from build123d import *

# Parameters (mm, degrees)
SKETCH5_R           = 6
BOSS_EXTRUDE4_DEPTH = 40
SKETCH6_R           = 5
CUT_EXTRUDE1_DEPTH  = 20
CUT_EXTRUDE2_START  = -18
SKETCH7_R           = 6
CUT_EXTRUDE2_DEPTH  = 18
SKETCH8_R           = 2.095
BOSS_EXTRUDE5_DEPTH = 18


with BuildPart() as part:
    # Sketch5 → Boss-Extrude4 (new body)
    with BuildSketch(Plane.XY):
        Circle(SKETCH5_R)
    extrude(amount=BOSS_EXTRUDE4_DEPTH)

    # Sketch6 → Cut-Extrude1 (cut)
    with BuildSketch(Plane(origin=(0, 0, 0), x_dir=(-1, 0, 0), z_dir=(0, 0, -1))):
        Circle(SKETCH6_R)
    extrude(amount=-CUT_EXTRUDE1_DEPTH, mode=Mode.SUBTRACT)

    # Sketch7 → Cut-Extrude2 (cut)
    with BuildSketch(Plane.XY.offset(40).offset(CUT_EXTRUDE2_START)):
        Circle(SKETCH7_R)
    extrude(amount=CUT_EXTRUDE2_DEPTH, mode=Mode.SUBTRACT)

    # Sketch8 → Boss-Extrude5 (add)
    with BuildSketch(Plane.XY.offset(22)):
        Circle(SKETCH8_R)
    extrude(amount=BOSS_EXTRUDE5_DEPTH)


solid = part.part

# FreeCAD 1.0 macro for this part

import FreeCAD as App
import Part
import Sketcher

V = App.Vector
Q = App.Units.Quantity

doc = App.newDocument("Part")
params = doc.addObject("Spreadsheet::Sheet", "Params")
for row, (alias, value) in enumerate([
    ("sketch1_diameter", "12 mm"),
    ("pad1_length", "40 mm"),
    ("sketch2_diameter", "10 mm"),
    ("pocket1_length", "20 mm"),
    ("sketch3_diameter", "12 mm"),
    ("pocket2_length", "18 mm"),
    ("sketch4_diameter", "4.19 mm"),
    ("pad2_length", "18 mm"),
], start=1):
    params.set(f"A{row}", alias)
    params.set(f"B{row}", "=" + value)
    params.setAlias(f"B{row}", alias)

body = doc.addObject("PartDesign::Body", "Body")

# Sketch on XY plane
sketch1 = body.newObject("Sketcher::SketchObject", "Sketch")
sketch1.AttachmentSupport = (doc.getObject("XY_Plane"), [""])
sketch1.MapMode = "FlatFace"
sketch1.addGeometry(Part.Circle(V(0, 0, 0), V(0, 0, 1), 6), False)
sketch1.addConstraint([
    Sketcher.Constraint("Coincident", 0, 3, -1, 1),
    Sketcher.Constraint("Diameter", 0, Q("12 mm")),
])
sketch1.setExpression("Constraints[1]", "Params.sketch1_diameter")
pad1 = body.newObject("PartDesign::Pad", "Pad")
pad1.Profile = sketch1
pad1.setExpression("Length", "Params.pad1_length")

# Sketch on XY plane
sketch2 = body.newObject("Sketcher::SketchObject", "Sketch001")
sketch2.AttachmentSupport = (doc.getObject("XY_Plane"), [""])
sketch2.MapMode = "FlatFace"
sketch2.addGeometry(Part.Circle(V(0, 0, 0), V(0, 0, 1), 5), False)
sketch2.addConstraint([
    Sketcher.Constraint("Coincident", 0, 3, -1, 1),
    Sketcher.Constraint("Diameter", 0, Q("10 mm")),
])
sketch2.setExpression("Constraints[1]", "Params.sketch2_diameter")
pocket1 = body.newObject("PartDesign::Pocket", "Pocket")
pocket1.Profile = sketch2
pocket1.setExpression("Length", "Params.pocket1_length")
pocket1.Reversed = True

# Sketch on XY plane
sketch3 = body.newObject("Sketcher::SketchObject", "Sketch002")
sketch3.AttachmentSupport = (doc.getObject("XY_Plane"), [""])
sketch3.MapMode = "FlatFace"
sketch3.AttachmentOffset = App.Placement(V(0, 0, 22), App.Rotation())
sketch3.addGeometry(Part.Circle(V(0, 0, 0), V(0, 0, 1), 6), False)
sketch3.addConstraint([
    Sketcher.Constraint("Coincident", 0, 3, -1, 1),
    Sketcher.Constraint("Diameter", 0, Q("12 mm")),
])
sketch3.setExpression("Constraints[1]", "Params.sketch3_diameter")
pocket2 = body.newObject("PartDesign::Pocket", "Pocket001")
pocket2.Profile = sketch3
pocket2.setExpression("Length", "Params.pocket2_length")
pocket2.Reversed = True

# Sketch on XY plane
sketch4 = body.newObject("Sketcher::SketchObject", "Sketch003")
sketch4.AttachmentSupport = (doc.getObject("XY_Plane"), [""])
sketch4.MapMode = "FlatFace"
sketch4.AttachmentOffset = App.Placement(V(0, 0, 22), App.Rotation())
sketch4.addGeometry(Part.Circle(V(0, 0, 0), V(0, 0, 1), 2.1), False)
sketch4.addConstraint([
    Sketcher.Constraint("Coincident", 0, 3, -1, 1),
    Sketcher.Constraint("Diameter", 0, Q("4.19 mm")),
])
sketch4.setExpression("Constraints[1]", "Params.sketch4_diameter")
pad2 = body.newObject("PartDesign::Pad", "Pad001")
pad2.Profile = sketch4
pad2.setExpression("Length", "Params.pad2_length")

doc.recompute()
